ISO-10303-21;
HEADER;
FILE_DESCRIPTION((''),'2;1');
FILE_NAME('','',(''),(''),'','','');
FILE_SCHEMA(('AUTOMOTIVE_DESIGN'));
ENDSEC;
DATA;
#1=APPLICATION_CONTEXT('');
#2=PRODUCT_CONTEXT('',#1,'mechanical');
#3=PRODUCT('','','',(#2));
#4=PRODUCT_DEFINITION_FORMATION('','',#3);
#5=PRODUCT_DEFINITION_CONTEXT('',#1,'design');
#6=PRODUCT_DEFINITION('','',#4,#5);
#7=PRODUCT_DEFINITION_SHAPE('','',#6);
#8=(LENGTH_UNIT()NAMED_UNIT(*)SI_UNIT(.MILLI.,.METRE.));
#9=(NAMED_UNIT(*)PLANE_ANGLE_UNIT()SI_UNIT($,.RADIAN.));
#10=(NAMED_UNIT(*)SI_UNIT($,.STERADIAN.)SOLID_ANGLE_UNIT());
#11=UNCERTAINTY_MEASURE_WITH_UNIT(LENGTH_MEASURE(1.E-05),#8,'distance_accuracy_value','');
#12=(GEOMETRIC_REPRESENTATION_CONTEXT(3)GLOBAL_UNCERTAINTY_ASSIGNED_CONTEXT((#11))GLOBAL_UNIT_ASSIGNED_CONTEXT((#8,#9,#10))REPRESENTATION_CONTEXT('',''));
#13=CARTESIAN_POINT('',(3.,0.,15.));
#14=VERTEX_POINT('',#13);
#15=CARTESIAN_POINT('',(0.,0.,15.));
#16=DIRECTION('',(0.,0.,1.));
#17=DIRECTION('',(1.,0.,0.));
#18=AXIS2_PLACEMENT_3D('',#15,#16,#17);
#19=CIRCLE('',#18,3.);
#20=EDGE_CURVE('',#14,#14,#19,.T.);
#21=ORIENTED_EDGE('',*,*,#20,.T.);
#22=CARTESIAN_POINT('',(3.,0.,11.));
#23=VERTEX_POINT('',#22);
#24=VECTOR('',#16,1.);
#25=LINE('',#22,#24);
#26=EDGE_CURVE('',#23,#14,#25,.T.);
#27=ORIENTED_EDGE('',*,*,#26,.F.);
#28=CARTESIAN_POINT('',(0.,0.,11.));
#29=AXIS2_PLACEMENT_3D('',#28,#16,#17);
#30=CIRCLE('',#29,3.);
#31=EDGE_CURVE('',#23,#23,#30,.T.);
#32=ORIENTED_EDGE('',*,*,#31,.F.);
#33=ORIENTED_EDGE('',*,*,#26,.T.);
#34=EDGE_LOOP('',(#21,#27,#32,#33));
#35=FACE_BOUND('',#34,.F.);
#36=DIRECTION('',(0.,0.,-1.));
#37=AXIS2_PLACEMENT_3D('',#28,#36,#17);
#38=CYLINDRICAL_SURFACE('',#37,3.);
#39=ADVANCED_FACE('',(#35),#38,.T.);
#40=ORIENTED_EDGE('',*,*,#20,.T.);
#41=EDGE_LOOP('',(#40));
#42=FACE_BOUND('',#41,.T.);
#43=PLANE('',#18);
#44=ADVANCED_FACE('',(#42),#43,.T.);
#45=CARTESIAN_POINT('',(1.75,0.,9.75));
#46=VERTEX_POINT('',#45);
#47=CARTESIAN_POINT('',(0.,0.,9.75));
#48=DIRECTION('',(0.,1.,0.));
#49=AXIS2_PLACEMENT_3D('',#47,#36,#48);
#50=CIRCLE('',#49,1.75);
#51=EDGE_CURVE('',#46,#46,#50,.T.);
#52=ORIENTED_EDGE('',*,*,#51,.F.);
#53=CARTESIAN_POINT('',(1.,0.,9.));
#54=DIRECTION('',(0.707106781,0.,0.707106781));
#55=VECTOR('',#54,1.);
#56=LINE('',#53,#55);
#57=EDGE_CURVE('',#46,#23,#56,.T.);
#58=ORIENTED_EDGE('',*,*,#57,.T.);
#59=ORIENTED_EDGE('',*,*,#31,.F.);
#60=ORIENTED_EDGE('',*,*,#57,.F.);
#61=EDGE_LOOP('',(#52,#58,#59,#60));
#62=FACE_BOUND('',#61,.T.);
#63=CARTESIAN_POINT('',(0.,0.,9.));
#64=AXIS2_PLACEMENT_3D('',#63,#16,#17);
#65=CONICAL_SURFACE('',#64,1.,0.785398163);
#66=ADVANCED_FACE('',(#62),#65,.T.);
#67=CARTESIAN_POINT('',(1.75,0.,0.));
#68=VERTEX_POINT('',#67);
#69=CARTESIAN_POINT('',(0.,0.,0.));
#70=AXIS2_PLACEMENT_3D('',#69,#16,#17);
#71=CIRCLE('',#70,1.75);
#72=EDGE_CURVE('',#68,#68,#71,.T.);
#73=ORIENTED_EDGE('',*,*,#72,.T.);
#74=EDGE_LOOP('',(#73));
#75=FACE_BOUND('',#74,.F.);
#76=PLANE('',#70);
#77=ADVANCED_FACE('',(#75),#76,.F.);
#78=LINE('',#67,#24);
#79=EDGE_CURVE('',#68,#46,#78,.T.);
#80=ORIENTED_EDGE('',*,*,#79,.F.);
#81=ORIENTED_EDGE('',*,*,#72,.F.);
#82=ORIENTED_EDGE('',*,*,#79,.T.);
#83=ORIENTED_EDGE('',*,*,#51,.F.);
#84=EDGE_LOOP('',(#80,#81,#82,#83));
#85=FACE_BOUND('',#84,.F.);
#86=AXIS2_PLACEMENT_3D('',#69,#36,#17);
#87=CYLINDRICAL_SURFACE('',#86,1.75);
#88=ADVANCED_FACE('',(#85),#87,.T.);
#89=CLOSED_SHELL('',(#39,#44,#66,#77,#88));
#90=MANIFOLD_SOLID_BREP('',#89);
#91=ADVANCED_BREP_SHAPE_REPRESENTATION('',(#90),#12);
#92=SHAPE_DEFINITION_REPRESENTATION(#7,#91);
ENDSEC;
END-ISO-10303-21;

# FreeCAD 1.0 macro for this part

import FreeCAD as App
import Part
import Sketcher

V = App.Vector
Q = App.Units.Quantity

doc = App.newDocument("Part")
body = doc.addObject("PartDesign::Body", "Body")

# Sketch on XZ plane
sketch1 = body.newObject("Sketcher::SketchObject", "Sketch")
sketch1.AttachmentSupport = (doc.getObject("XZ_Plane"), [""])
sketch1.MapMode = "FlatFace"
sketch1.addGeometry([
    Part.LineSegment(V(0, 9, 0), V(1, 9, 0)),
    Part.LineSegment(V(1, 9, 0), V(3, 11, 0)),
    Part.LineSegment(V(3, 11, 0), V(0, 11, 0)),
    Part.LineSegment(V(0, 11, 0), V(0, 9, 0)),
], False)
sketch1.addConstraint([
    Sketcher.Constraint("Coincident", 0, 2, 1, 1),
    Sketcher.Constraint("Coincident", 1, 2, 2, 1),
    Sketcher.Constraint("Coincident", 2, 2, 3, 1),
    Sketcher.Constraint("Coincident", 3, 2, 0, 1),
    Sketcher.Constraint("Horizontal", 0),
    Sketcher.Constraint("Horizontal", 2),
    Sketcher.Constraint("Vertical", 3),
    Sketcher.Constraint("PointOnObject", 2, 2, -2),
    Sketcher.Constraint("DistanceX", 0, 1, 0, 2, Q("1 mm")),
    Sketcher.Constraint("DistanceX", 2, 2, 2, 1, Q("3 mm")),
    Sketcher.Constraint("DistanceY", 3, 2, 3, 1, Q("2 mm")),
    Sketcher.Constraint("DistanceY", -1, 1, 0, 2, Q("9 mm")),
])
revolution = body.newObject("PartDesign::Revolution", "Revolution")
revolution.Profile = sketch1
revolution.ReferenceAxis = (sketch1, ["V_Axis"])
revolution.Angle = 360
body2 = doc.addObject("PartDesign::Body", "Body001")

# Sketch on XY plane
sketch2 = body2.newObject("Sketcher::SketchObject", "Sketch001")
sketch2.AttachmentSupport = (doc.getObject("XY_Plane001"), [""])
sketch2.MapMode = "FlatFace"
sketch2.addGeometry(Part.Circle(V(0, 0, 0), V(0, 0, 1), 1.8), False)
sketch2.addConstraint([
    Sketcher.Constraint("Coincident", 0, 3, -1, 1),
    Sketcher.Constraint("Diameter", 0, Q("3.5 mm")),
])
pad1 = body2.newObject("PartDesign::Pad", "Pad")
pad1.Profile = sketch2
pad1.Length = 10
body3 = doc.addObject("PartDesign::Body", "Body002")

# Sketch on XY plane
sketch3 = body3.newObject("Sketcher::SketchObject", "Sketch002")
sketch3.AttachmentSupport = (doc.getObject("XY_Plane002"), [""])
sketch3.MapMode = "FlatFace"
sketch3.AttachmentOffset = App.Placement(V(0, 0, 11), App.Rotation())
sketch3.addGeometry(Part.Circle(V(0, 0, 0), V(0, 0, 1), 3), False)
sketch3.addConstraint([
    Sketcher.Constraint("Coincident", 0, 3, -1, 1),
    Sketcher.Constraint("Diameter", 0, Q("6 mm")),
])
pad2 = body3.newObject("PartDesign::Pad", "Pad001")
pad2.Profile = sketch3
pad2.Length = 4
doc.recompute()

boolean = body3.newObject("PartDesign::Boolean", "Boolean")
boolean.Type = "Fuse"
boolean.addObjects([body])
doc.recompute()

boolean2 = body3.newObject("PartDesign::Boolean", "Boolean001")
boolean2.Type = "Fuse"
boolean2.addObjects([body2])

doc.recompute()
